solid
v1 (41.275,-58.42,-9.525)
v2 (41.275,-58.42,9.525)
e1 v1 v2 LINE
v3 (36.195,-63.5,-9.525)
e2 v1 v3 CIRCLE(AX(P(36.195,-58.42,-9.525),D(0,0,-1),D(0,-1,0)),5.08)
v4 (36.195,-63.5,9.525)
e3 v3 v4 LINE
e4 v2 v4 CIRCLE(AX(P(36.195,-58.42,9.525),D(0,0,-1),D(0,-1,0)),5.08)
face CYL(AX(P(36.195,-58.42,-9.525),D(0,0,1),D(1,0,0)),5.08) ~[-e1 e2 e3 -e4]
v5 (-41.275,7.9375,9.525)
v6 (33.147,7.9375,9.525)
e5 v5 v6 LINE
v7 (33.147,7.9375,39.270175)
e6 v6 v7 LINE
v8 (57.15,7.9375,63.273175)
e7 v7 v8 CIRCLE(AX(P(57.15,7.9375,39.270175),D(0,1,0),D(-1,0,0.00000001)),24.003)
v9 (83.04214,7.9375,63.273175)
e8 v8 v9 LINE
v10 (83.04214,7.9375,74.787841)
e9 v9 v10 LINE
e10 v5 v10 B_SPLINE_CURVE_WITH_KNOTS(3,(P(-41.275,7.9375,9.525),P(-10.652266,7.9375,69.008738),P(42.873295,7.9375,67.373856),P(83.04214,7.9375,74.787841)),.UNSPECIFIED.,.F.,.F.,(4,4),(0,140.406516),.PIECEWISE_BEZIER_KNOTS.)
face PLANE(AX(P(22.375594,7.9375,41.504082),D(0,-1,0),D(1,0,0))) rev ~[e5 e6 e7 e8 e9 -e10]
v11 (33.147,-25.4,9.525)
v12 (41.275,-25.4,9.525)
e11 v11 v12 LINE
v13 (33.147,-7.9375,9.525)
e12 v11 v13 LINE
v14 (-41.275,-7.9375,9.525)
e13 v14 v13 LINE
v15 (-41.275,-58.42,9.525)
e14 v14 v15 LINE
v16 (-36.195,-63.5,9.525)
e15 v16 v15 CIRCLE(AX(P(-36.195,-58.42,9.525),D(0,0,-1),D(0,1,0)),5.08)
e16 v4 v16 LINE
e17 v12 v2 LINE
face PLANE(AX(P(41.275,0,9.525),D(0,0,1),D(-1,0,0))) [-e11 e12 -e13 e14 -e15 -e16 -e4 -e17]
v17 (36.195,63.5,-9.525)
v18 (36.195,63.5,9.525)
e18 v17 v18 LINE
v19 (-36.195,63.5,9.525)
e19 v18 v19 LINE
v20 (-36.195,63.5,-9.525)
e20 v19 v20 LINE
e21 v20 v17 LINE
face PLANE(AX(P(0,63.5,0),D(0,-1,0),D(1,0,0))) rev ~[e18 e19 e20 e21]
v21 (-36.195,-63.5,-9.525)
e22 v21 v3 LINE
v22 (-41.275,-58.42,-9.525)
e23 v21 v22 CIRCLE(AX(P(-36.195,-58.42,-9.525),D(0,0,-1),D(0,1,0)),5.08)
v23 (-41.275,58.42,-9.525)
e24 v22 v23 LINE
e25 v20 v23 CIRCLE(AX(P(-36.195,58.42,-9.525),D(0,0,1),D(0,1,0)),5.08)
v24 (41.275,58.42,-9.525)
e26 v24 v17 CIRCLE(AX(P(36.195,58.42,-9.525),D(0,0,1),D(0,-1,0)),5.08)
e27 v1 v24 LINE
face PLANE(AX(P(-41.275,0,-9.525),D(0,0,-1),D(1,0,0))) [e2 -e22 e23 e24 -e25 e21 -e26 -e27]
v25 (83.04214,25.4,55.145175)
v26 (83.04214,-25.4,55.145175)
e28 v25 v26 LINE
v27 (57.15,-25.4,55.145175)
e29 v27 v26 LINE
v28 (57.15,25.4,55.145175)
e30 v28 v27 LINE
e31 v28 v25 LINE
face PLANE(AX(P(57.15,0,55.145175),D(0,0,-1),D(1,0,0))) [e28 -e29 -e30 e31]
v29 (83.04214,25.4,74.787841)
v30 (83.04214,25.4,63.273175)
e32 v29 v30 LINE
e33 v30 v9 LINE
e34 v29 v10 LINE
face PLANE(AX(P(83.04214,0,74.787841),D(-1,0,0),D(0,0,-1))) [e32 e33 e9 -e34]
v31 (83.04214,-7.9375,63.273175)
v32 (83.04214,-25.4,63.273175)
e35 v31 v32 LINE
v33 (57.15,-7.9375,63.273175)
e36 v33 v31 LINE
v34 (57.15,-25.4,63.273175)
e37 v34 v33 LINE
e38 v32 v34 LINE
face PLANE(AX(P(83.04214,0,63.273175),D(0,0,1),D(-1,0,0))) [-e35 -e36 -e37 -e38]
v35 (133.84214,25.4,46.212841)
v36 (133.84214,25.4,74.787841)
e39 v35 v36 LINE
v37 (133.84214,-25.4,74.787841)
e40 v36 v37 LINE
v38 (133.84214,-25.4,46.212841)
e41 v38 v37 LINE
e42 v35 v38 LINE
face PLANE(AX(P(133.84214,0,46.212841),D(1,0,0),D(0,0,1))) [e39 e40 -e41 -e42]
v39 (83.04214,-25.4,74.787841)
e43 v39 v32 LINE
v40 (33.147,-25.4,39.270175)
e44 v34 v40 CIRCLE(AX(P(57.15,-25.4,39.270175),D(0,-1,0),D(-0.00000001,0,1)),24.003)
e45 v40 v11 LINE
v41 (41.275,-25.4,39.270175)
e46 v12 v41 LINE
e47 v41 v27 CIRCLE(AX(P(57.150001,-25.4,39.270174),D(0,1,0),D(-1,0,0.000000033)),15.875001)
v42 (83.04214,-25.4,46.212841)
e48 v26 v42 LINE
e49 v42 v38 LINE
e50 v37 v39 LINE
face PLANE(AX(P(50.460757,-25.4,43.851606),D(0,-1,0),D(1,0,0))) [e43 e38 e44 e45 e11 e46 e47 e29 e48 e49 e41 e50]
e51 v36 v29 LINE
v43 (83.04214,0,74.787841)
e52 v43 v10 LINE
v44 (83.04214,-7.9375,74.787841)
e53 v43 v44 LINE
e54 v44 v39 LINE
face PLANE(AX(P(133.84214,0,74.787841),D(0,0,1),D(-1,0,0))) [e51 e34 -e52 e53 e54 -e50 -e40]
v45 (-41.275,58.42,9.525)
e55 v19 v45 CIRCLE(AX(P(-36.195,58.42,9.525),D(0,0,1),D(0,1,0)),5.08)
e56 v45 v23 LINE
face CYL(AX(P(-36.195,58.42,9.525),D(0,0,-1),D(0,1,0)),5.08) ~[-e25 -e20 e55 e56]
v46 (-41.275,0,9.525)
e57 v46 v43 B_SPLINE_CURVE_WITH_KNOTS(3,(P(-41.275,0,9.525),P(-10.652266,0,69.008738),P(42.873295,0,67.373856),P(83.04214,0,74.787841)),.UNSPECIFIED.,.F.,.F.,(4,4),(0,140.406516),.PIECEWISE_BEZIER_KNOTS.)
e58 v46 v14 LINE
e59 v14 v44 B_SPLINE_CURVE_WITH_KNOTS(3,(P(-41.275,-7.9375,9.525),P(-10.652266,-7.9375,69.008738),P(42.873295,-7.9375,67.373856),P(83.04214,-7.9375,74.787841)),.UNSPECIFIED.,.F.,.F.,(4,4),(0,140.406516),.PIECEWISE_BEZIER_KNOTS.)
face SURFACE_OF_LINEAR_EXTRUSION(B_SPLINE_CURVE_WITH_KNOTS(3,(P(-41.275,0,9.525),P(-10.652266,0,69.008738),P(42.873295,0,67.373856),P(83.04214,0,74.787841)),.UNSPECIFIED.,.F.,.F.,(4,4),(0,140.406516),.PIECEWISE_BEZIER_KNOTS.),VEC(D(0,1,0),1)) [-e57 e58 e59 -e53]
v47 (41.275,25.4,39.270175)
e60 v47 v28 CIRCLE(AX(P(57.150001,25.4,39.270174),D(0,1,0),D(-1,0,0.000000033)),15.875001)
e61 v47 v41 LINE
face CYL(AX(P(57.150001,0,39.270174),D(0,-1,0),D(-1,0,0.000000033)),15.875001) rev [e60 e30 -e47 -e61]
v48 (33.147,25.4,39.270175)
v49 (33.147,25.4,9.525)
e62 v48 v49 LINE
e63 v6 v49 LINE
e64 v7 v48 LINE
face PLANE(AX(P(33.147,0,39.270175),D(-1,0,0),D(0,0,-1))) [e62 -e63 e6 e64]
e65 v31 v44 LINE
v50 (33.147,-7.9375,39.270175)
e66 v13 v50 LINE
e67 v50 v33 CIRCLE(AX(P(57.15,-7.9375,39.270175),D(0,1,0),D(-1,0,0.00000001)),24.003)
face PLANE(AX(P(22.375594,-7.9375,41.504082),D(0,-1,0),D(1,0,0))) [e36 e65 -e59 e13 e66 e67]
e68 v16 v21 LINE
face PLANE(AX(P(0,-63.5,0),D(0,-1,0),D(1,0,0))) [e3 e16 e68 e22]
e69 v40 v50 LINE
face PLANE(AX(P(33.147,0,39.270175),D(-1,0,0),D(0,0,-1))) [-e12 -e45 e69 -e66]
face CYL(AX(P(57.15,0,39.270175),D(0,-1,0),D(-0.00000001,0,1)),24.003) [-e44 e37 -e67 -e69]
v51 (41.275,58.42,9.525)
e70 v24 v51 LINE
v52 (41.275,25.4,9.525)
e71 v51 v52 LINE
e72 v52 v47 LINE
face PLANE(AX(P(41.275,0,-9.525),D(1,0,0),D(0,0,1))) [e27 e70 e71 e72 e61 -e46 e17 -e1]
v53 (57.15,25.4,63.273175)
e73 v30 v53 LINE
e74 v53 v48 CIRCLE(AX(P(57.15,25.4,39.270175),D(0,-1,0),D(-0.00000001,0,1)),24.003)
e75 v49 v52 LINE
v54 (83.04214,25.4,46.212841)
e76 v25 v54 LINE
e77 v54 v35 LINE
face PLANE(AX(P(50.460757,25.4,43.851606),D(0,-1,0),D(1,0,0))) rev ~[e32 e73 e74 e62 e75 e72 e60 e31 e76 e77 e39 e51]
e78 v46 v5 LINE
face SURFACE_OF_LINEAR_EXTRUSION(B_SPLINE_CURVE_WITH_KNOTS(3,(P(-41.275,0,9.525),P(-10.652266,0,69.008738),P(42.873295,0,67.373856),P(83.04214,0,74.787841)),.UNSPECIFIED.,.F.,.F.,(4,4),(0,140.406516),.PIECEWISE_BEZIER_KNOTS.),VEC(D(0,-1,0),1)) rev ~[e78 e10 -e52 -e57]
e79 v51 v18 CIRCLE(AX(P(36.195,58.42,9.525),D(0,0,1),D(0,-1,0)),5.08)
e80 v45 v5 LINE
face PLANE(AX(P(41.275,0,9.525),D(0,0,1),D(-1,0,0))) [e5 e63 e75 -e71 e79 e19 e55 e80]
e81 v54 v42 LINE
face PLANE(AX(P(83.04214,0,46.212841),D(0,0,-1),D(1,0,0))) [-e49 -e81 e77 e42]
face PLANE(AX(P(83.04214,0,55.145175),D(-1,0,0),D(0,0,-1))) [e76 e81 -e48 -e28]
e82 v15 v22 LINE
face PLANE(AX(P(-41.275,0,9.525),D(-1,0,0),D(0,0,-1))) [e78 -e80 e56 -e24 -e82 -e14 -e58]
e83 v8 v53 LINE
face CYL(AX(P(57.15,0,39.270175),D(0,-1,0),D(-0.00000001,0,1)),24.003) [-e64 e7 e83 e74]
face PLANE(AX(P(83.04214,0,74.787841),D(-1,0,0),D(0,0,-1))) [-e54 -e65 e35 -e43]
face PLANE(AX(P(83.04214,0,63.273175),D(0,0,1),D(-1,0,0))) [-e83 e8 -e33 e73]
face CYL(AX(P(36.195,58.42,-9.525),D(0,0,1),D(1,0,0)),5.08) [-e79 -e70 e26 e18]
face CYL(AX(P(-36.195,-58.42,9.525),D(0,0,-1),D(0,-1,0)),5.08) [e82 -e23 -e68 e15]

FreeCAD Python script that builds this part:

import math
import FreeCAD as App
import Part
import Sketcher
from FreeCAD import Vector
Q = App.Units.Quantity


def edges_at(feature, points):
    """Names of the edges that pass closest to the given points."""
    edges = feature.Shape.Edges
    near = lambda p: min(range(len(edges)), key=lambda i: edges[i].distToShape(Part.Vertex(*p))[0])
    return sorted({f"Edge{near(p) + 1}" for p in points})

doc = App.newDocument("Part")
body = doc.addObject("PartDesign::Body", "Body")

# Sketch on XZ plane
sketch1 = doc.addObject("Sketcher::SketchObject", "Sketch")
body.addObject(sketch1)
sketch1.AttachmentSupport = (doc.XZ_Plane, [""])
sketch1.MapMode = "FlatFace"
sketch1.addGeometry(Part.LineSegment(Vector(41, -10, 0), Vector(41, 10, 0)), False)
sketch1.addGeometry(Part.LineSegment(Vector(41, 10, 0), Vector(-41, 10, 0)), False)
sketch1.addGeometry(Part.LineSegment(Vector(-41, 10, 0), Vector(-41, -10, 0)), False)
sketch1.addGeometry(Part.LineSegment(Vector(-41, -10, 0), Vector(41, -10, 0)), False)
sketch1.addConstraint(Sketcher.Constraint("Coincident", 0, 2, 1, 1))
sketch1.addConstraint(Sketcher.Constraint("Coincident", 1, 2, 2, 1))
sketch1.addConstraint(Sketcher.Constraint("Coincident", 2, 2, 3, 1))
sketch1.addConstraint(Sketcher.Constraint("Coincident", 3, 2, 0, 1))
sketch1.addConstraint(Sketcher.Constraint("Vertical", 0))
sketch1.addConstraint(Sketcher.Constraint("Horizontal", 1))
sketch1.addConstraint(Sketcher.Constraint("Vertical", 2))
sketch1.addConstraint(Sketcher.Constraint("Horizontal", 3))
sketch1.addConstraint(Sketcher.Constraint("Symmetric", 0, 2, 2, 2, -1, 1))
sketch1.addConstraint(Sketcher.Constraint("DistanceX", 1, 2, 1, 1, Q("3.25 in")))
sketch1.addConstraint(Sketcher.Constraint("DistanceY", 0, 1, 0, 2, Q("0.75 in")))
pad1 = doc.addObject("PartDesign::Pad", "Pad")
body.addObject(pad1)
pad1.Profile = sketch1
pad1.Length = Q("5 in")
pad1.Midplane = True

# Sketch on XZ plane
sketch2 = doc.addObject("Sketcher::SketchObject", "Sketch001")
body.addObject(sketch2)
sketch2.AttachmentSupport = (doc.XZ_Plane, [""])
sketch2.MapMode = "FlatFace"
sketch2.addGeometry(Part.LineSegment(Vector(33, 10, 0), Vector(41, 10, 0)), False)
sketch2.addGeometry(Part.LineSegment(Vector(41, 10, 0), Vector(41, 39, 0)), False)
sketch2.addGeometry(Part.ArcOfCircle(Part.Circle(Vector(57, 39, 0), Vector(0, 0, 1), 16), math.radians(90), math.radians(180)), False)
sketch2.addGeometry(Part.LineSegment(Vector(57, 55, 0), Vector(83, 55, 0)), False)
sketch2.addGeometry(Part.LineSegment(Vector(83, 55, 0), Vector(83, 46, 0)), False)
sketch2.addGeometry(Part.LineSegment(Vector(83, 46, 0), Vector(134, 46, 0)), False)
sketch2.addGeometry(Part.LineSegment(Vector(134, 46, 0), Vector(134, 75, 0)), False)
sketch2.addGeometry(Part.LineSegment(Vector(134, 75, 0), Vector(83, 75, 0)), False)
sketch2.addGeometry(Part.LineSegment(Vector(83, 75, 0), Vector(83, 63, 0)), False)
sketch2.addGeometry(Part.LineSegment(Vector(83, 63, 0), Vector(57, 63, 0)), False)
sketch2.addGeometry(Part.ArcOfCircle(Part.Circle(Vector(57, 39, 0), Vector(0, 0, 1), 24), math.radians(90), math.radians(180)), False)
sketch2.addGeometry(Part.LineSegment(Vector(33, 39, 0), Vector(33, 10, 0)), False)
sketch2.addConstraint(Sketcher.Constraint("Coincident", 0, 2, 1, 1))
sketch2.addConstraint(Sketcher.Constraint("Tangent", 1, 2, 2, 2))
sketch2.addConstraint(Sketcher.Constraint("Tangent", 2, 1, 3, 1))
sketch2.addConstraint(Sketcher.Constraint("Coincident", 3, 2, 4, 1))
sketch2.addConstraint(Sketcher.Constraint("Coincident", 4, 2, 5, 1))
sketch2.addConstraint(Sketcher.Constraint("Coincident", 5, 2, 6, 1))
sketch2.addConstraint(Sketcher.Constraint("Coincident", 6, 2, 7, 1))
sketch2.addConstraint(Sketcher.Constraint("Coincident", 7, 2, 8, 1))
sketch2.addConstraint(Sketcher.Constraint("Coincident", 8, 2, 9, 1))
sketch2.addConstraint(Sketcher.Constraint("Tangent", 9, 2, 10, 1))
sketch2.addConstraint(Sketcher.Constraint("Tangent", 10, 2, 11, 1))
sketch2.addConstraint(Sketcher.Constraint("Coincident", 11, 2, 0, 1))
sketch2.addConstraint(Sketcher.Constraint("Horizontal", 0))
sketch2.addConstraint(Sketcher.Constraint("Vertical", 1))
sketch2.addConstraint(Sketcher.Constraint("Horizontal", 3))
sketch2.addConstraint(Sketcher.Constraint("Vertical", 4))
sketch2.addConstraint(Sketcher.Constraint("Horizontal", 5))
sketch2.addConstraint(Sketcher.Constraint("Vertical", 6))
sketch2.addConstraint(Sketcher.Constraint("Horizontal", 7))
sketch2.addConstraint(Sketcher.Constraint("Vertical", 8))
sketch2.addConstraint(Sketcher.Constraint("Horizontal", 9))
sketch2.addConstraint(Sketcher.Constraint("Vertical", 11))
sketch2.addConstraint(Sketcher.Constraint("Coincident", 10, 3, 2, 3))
sketch2.addConstraint(Sketcher.Constraint("Vertical", 4, 2, 7, 2))
sketch2.addConstraint(Sketcher.Constraint("DistanceX", 5, 1, 5, 2, Q("2 in")))
sketch2.addConstraint(Sketcher.Constraint("Radius", 2, Q("0.625 in")))
sketch2.addConstraint(Sketcher.Constraint("Radius", 10, Q("0.945 in")))
sketch2.addConstraint(Sketcher.Constraint("DistanceY", 6, 1, 6, 2, Q("1.125 in")))
sketch2.addConstraint(Sketcher.Constraint("DistanceX", -1, 1, 2, 3, Q("2.25 in")))
sketch2.addConstraint(Sketcher.Constraint("DistanceY", -1, 1, 0, 2, Q("0.375 in")))
sketch2.addConstraint(Sketcher.Constraint("DistanceX", 3, 1, 3, 2, Q("25.89214 mm")))
sketch2.addConstraint(Sketcher.Constraint("DistanceY", 1, 1, 1, 2, Q("29.745175 mm")))
sketch2.addConstraint(Sketcher.Constraint("DistanceY", 4, 2, 4, 1, Q("8.932334 mm")))
pad2 = doc.addObject("PartDesign::Pad", "Pad001")
body.addObject(pad2)
pad2.Profile = sketch2
pad2.Length = Q("2 in")
pad2.Midplane = True

# Sketch on XZ plane
sketch3 = doc.addObject("Sketcher::SketchObject", "Sketch002")
body.addObject(sketch3)
sketch3.AttachmentSupport = (doc.XZ_Plane, [""])
sketch3.MapMode = "FlatFace"
sketch3.addGeometry(Part.LineSegment(Vector(-41.275, 9.525, 0), Vector(33.147, 9.525, 0)), False)
sketch3.addGeometry(Part.LineSegment(Vector(33.147, 9.525, 0), Vector(33.147, 39.270175, 0)), False)
sketch3.addGeometry(Part.ArcOfCircle(Part.Circle(Vector(57.15, 39.270175, 0), Vector(0, 0, 1), 24.003), math.radians(90.000001), math.radians(179.999999)), False)
sketch3.addGeometry(Part.LineSegment(Vector(57.15, 63.273175, 0), Vector(83.04214, 63.273175, 0)), False)
sketch3.addGeometry(Part.LineSegment(Vector(83.04214, 63.273175, 0), Vector(83.04214, 74.787841, 0)), False)
sketch3.addGeometry(Part.BSplineCurve([Vector(-41.275, 9.525, 0), Vector(-10.652266, 69.008738, 0), Vector(42.873295, 67.373856, 0), Vector(83.04214, 74.787841, 0)], [4, 4], [0, 140.406516], False, 3, [1, 1, 1, 1], False), False)
sketch3.addConstraint(Sketcher.Constraint("Block", 5))
sketch3.addConstraint(Sketcher.Constraint("Coincident", 0, 2, 1, 1))
sketch3.addConstraint(Sketcher.Constraint("Tangent", 1, 2, 2, 2))
sketch3.addConstraint(Sketcher.Constraint("Tangent", 2, 1, 3, 1))
sketch3.addConstraint(Sketcher.Constraint("Coincident", 3, 2, 4, 1))
sketch3.addConstraint(Sketcher.Constraint("Coincident", 4, 2, 5, 2))
sketch3.addConstraint(Sketcher.Constraint("Coincident", 5, 1, 0, 1))
sketch3.addConstraint(Sketcher.Constraint("Horizontal", 0))
sketch3.addConstraint(Sketcher.Constraint("Vertical", 1))
sketch3.addConstraint(Sketcher.Constraint("Horizontal", 3))
sketch3.addConstraint(Sketcher.Constraint("Vertical", 4))
sketch3.addConstraint(Sketcher.Constraint("Radius", 2, Q("0.945 in")))
sketch3.addConstraint(Sketcher.Constraint("DistanceX", 0, 1, 0, 2, Q("2.93 in")))
sketch3.addConstraint(Sketcher.Constraint("DistanceY", 1, 1, 1, 2, Q("29.745175 mm")))
pad3 = doc.addObject("PartDesign::Pad", "Pad002")
body.addObject(pad3)
pad3.Profile = sketch3
pad3.Length = Q("0.625 in")
pad3.Midplane = True
doc.recompute()

fillet = doc.addObject("PartDesign::Fillet", "Fillet")
body.addObject(fillet)
fillet.Base = (pad3, edges_at(pad3, [
    (-41.275, -63.5, 0),
    (41.275, -63.5, 0),
    (41.275, 63.5, 0),
    (-41.275, 63.5, 0),
]))
fillet.Radius = Q("0.2 in")

doc.recompute()
